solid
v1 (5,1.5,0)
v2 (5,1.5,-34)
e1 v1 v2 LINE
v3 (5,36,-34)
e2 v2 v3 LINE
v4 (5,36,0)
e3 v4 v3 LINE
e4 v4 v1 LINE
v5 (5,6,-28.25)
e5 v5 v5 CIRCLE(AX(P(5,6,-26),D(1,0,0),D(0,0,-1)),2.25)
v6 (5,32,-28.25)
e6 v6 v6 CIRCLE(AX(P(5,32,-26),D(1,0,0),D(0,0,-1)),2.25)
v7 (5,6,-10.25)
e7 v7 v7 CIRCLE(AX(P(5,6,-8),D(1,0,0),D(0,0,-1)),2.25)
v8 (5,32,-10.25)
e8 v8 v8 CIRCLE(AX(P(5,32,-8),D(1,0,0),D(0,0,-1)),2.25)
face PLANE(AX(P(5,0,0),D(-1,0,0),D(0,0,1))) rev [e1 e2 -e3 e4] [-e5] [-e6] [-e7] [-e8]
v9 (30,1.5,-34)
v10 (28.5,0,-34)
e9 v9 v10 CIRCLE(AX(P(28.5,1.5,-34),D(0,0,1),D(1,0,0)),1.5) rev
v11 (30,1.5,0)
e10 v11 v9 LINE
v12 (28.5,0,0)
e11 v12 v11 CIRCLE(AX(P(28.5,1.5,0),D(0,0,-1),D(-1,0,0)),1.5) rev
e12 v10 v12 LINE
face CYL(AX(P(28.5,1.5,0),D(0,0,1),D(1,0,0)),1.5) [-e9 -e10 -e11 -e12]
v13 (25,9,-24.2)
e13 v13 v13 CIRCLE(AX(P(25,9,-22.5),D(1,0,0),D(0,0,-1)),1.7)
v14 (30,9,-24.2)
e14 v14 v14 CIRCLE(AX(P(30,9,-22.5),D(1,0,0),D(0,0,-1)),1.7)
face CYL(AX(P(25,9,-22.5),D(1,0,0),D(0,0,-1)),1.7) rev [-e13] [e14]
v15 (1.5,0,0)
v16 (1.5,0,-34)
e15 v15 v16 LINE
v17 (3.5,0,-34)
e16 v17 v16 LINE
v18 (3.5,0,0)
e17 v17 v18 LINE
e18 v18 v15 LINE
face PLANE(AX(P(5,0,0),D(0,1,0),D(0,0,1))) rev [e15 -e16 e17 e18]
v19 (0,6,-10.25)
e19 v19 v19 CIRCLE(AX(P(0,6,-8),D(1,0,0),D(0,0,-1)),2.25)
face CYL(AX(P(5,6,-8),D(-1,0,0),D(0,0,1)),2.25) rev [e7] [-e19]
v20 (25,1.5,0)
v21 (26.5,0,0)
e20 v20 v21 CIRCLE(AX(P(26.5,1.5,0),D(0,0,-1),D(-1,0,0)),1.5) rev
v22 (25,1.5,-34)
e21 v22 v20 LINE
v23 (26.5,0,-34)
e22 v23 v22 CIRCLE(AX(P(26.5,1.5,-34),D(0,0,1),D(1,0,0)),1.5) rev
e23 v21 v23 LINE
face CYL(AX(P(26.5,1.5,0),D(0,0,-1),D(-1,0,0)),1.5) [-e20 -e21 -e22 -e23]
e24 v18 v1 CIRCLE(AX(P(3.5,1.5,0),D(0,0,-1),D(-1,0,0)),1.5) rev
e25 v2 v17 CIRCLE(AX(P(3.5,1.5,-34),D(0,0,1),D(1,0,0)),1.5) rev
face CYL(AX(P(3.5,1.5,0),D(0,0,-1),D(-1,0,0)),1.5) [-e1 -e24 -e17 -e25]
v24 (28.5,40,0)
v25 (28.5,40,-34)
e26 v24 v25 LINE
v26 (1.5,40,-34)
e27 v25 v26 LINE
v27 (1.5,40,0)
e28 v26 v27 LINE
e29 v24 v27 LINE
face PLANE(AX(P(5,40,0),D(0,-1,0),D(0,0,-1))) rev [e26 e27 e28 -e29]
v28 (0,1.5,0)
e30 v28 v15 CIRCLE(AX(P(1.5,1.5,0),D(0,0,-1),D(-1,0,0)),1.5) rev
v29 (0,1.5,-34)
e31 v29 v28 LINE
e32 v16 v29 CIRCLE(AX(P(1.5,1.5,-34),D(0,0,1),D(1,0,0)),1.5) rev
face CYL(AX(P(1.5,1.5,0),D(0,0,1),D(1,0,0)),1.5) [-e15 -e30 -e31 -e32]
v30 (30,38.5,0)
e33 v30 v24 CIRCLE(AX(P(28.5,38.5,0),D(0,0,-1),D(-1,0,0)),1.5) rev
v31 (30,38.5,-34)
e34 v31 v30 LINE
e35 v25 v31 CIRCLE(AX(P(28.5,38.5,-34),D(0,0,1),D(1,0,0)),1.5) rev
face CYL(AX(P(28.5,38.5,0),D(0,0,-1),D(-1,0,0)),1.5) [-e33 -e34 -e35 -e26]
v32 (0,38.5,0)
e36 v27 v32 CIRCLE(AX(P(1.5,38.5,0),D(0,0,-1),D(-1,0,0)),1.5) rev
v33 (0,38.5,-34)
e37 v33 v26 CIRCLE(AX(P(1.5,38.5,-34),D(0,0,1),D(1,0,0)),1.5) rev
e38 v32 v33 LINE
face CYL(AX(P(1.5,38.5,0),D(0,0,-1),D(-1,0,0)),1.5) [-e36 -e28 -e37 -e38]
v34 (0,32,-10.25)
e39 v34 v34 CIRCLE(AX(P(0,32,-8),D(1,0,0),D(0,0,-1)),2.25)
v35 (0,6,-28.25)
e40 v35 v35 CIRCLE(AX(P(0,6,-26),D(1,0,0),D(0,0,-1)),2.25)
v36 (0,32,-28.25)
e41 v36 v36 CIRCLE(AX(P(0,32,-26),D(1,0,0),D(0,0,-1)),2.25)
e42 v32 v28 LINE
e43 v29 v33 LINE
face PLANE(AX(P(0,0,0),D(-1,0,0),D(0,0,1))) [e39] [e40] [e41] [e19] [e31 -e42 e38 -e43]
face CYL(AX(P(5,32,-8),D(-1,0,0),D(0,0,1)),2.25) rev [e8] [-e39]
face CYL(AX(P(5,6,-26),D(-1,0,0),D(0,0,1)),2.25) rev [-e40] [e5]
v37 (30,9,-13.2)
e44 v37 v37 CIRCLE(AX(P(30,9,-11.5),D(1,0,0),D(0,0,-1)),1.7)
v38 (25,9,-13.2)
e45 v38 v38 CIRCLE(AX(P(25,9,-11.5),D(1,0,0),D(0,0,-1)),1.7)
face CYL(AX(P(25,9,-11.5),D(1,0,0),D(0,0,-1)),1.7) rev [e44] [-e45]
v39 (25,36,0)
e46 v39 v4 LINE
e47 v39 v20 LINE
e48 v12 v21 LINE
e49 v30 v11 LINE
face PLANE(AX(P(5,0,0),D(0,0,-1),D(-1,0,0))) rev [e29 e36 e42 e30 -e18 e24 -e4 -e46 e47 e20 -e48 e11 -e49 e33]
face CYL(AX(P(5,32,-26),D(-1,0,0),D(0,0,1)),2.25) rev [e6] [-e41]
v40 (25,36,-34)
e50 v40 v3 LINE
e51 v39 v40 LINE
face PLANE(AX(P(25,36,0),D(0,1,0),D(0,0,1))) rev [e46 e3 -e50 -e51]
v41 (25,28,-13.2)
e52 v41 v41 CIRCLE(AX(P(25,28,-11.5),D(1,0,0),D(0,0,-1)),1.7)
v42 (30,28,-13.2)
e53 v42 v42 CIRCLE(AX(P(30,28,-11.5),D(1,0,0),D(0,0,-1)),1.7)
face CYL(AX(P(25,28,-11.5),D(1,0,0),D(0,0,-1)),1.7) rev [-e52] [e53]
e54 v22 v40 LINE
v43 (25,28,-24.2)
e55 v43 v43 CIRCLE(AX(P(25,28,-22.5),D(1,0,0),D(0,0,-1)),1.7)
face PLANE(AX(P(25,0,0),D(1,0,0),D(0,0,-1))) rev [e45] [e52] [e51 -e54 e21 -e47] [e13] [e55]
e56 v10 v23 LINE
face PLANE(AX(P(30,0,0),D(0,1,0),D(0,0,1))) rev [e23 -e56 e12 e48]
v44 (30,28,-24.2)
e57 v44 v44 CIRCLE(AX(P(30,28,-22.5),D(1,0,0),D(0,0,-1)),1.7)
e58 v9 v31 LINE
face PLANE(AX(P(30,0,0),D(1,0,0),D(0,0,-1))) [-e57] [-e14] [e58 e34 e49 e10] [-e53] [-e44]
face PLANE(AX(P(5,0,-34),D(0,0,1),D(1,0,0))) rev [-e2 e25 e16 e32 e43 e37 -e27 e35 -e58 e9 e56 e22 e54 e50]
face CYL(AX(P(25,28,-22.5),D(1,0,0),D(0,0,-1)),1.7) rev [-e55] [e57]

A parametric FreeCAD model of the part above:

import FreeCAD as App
import Part
import Sketcher
Q = App.Units.Quantity


def edges_at(feature, points):
    """Names of the edges that pass closest to the given points."""
    edges = feature.Shape.Edges
    near = lambda p: min(range(len(edges)), key=lambda i: edges[i].distToShape(Part.Vertex(*p))[0])
    return sorted({f"Edge{near(p) + 1}" for p in points})

doc = App.newDocument("Part")
body = doc.addObject("PartDesign::Body", "Body")

sketch1 = body.newObject("Sketcher::SketchObject", "Sketch")
sketch1.AttachmentSupport = (doc.getObject("YZ_Plane"), [""])
sketch1.MapMode = "FlatFace"
sketch1.addGeometry([
    Part.LineSegment(App.Vector(40, 0, 0), App.Vector(0, 0, 0)),
    Part.LineSegment(App.Vector(0, 0, 0), App.Vector(0, -34, 0)),
    Part.LineSegment(App.Vector(0, -34, 0), App.Vector(40, -34, 0)),
    Part.LineSegment(App.Vector(40, -34, 0), App.Vector(40, 0, 0)),
    Part.Circle(App.Vector(6, -8, 0), App.Vector(0, 0, 1), 2.2),
    Part.Circle(App.Vector(6, -26, 0), App.Vector(0, 0, 1), 2.2),
    Part.Circle(App.Vector(32, -8, 0), App.Vector(0, 0, 1), 2.2),
    Part.Circle(App.Vector(32, -26, 0), App.Vector(0, 0, 1), 2.2),
], False)
sketch1.addConstraint([
    Sketcher.Constraint("Coincident", 0, 2, 1, 1),
    Sketcher.Constraint("Coincident", 1, 2, 2, 1),
    Sketcher.Constraint("Coincident", 2, 2, 3, 1),
    Sketcher.Constraint("Coincident", 3, 2, 0, 1),
    Sketcher.Constraint("Horizontal", 0),
    Sketcher.Constraint("Vertical", 1),
    Sketcher.Constraint("Horizontal", 2),
    Sketcher.Constraint("Vertical", 3),
    Sketcher.Constraint("Coincident", 0, 2, -1, 1),
    Sketcher.Constraint("Equal", 4, 5),
    Sketcher.Constraint("Equal", 5, 6),
    Sketcher.Constraint("Equal", 6, 7),
    Sketcher.Constraint("Horizontal", 4, 3, 6, 3),
    Sketcher.Constraint("Horizontal", 5, 3, 7, 3),
    Sketcher.Constraint("Vertical", 4, 3, 5, 3),
    Sketcher.Constraint("Vertical", 6, 3, 7, 3),
    Sketcher.Constraint("Diameter", 4, Q("4.5 mm")),
    Sketcher.Constraint("DistanceX", 0, 2, 0, 1, Q("40 mm")),
    Sketcher.Constraint("DistanceY", 1, 2, 1, 1, Q("34 mm")),
    Sketcher.Constraint("DistanceX", -1, 1, 4, 3, Q("6 mm")),
    Sketcher.Constraint("DistanceY", 4, 3, -1, 1, Q("8 mm")),
    Sketcher.Constraint("DistanceY", 5, 3, -1, 1, Q("26 mm")),
    Sketcher.Constraint("DistanceX", -1, 1, 6, 3, Q("32 mm")),
])
pad1 = body.newObject("PartDesign::Pad", "Pad")
pad1.Profile = sketch1
pad1.Length = 5

sketch2 = body.newObject("Sketcher::SketchObject", "Sketch001")
sketch2.AttachmentSupport = (doc.getObject("YZ_Plane"), [""])
sketch2.MapMode = "FlatFace"
sketch2.AttachmentOffset = App.Placement(App.Vector(0, 0, 5), App.Rotation())
sketch2.addGeometry([
    Part.LineSegment(App.Vector(40, 0, 0), App.Vector(36, 0, 0)),
    Part.LineSegment(App.Vector(36, 0, 0), App.Vector(36, -34, 0)),
    Part.LineSegment(App.Vector(36, -34, 0), App.Vector(40, -34, 0)),
    Part.LineSegment(App.Vector(40, -34, 0), App.Vector(40, 0, 0)),
], False)
sketch2.addConstraint([
    Sketcher.Constraint("Coincident", 0, 2, 1, 1),
    Sketcher.Constraint("Coincident", 1, 2, 2, 1),
    Sketcher.Constraint("Coincident", 2, 2, 3, 1),
    Sketcher.Constraint("Coincident", 3, 2, 0, 1),
    Sketcher.Constraint("Horizontal", 0),
    Sketcher.Constraint("Vertical", 1),
    Sketcher.Constraint("Horizontal", 2),
    Sketcher.Constraint("Vertical", 3),
    Sketcher.Constraint("PointOnObject", 0, 2, -1),
    Sketcher.Constraint("DistanceX", 0, 2, 0, 1, Q("4 mm")),
    Sketcher.Constraint("DistanceY", 1, 2, 1, 1, Q("34 mm")),
    Sketcher.Constraint("DistanceX", -1, 1, 0, 2, Q("36 mm")),
])
pad2 = body.newObject("PartDesign::Pad", "Pad001")
pad2.Profile = sketch2
pad2.Length = 20

sketch3 = body.newObject("Sketcher::SketchObject", "Sketch002")
sketch3.AttachmentSupport = (doc.getObject("YZ_Plane"), [""])
sketch3.MapMode = "FlatFace"
sketch3.AttachmentOffset = App.Placement(App.Vector(0, 0, 25), App.Rotation())
sketch3.addGeometry([
    Part.LineSegment(App.Vector(40, 0, 0), App.Vector(0, 0, 0)),
    Part.LineSegment(App.Vector(0, 0, 0), App.Vector(0, -34, 0)),
    Part.LineSegment(App.Vector(0, -34, 0), App.Vector(40, -34, 0)),
    Part.LineSegment(App.Vector(40, -34, 0), App.Vector(40, 0, 0)),
], False)
sketch3.addConstraint([
    Sketcher.Constraint("Coincident", 0, 2, 1, 1),
    Sketcher.Constraint("Coincident", 1, 2, 2, 1),
    Sketcher.Constraint("Coincident", 2, 2, 3, 1),
    Sketcher.Constraint("Coincident", 3, 2, 0, 1),
    Sketcher.Constraint("Horizontal", 0),
    Sketcher.Constraint("Vertical", 1),
    Sketcher.Constraint("Horizontal", 2),
    Sketcher.Constraint("Vertical", 3),
    Sketcher.Constraint("Coincident", 0, 2, -1, 1),
    Sketcher.Constraint("DistanceX", 0, 2, 0, 1, Q("40 mm")),
    Sketcher.Constraint("DistanceY", 1, 2, 1, 1, Q("34 mm")),
])
pad3 = body.newObject("PartDesign::Pad", "Pad002")
pad3.Profile = sketch3
pad3.Length = 5

sketch4 = body.newObject("Sketcher::SketchObject", "Sketch003")
sketch4.AttachmentSupport = (doc.getObject("YZ_Plane"), [""])
sketch4.MapMode = "FlatFace"
sketch4.AttachmentOffset = App.Placement(App.Vector(0, 0, 30), App.Rotation())
sketch4.addGeometry([
    Part.Circle(App.Vector(28, -11.5, 0), App.Vector(0, 0, 1), 1.7),
    Part.Circle(App.Vector(28, -22.5, 0), App.Vector(0, 0, 1), 1.7),
    Part.Circle(App.Vector(9, -11.5, 0), App.Vector(0, 0, 1), 1.7),
    Part.Circle(App.Vector(9, -22.5, 0), App.Vector(0, 0, 1), 1.7),
], False)
sketch4.addConstraint([
    Sketcher.Constraint("Equal", 0, 1),
    Sketcher.Constraint("Equal", 1, 2),
    Sketcher.Constraint("Equal", 2, 3),
    Sketcher.Constraint("Horizontal", 0, 3, 2, 3),
    Sketcher.Constraint("Horizontal", 1, 3, 3, 3),
    Sketcher.Constraint("Vertical", 0, 3, 1, 3),
    Sketcher.Constraint("Vertical", 2, 3, 3, 3),
    Sketcher.Constraint("Diameter", 0, Q("3.4 mm")),
    Sketcher.Constraint("DistanceX", -1, 1, 0, 3, Q("28 mm")),
    Sketcher.Constraint("DistanceX", -1, 1, 2, 3, Q("9 mm")),
    Sketcher.Constraint("DistanceY", 1, 3, 0, 3, Q("11 mm")),
    Sketcher.Constraint("DistanceY", 0, 3, -1, 1, Q("11.5 mm")),
])
pocket1 = body.newObject("PartDesign::Pocket", "Pocket")
pocket1.Profile = sketch4
pocket1.Length = 5
doc.recompute()

fillet = body.newObject("PartDesign::Fillet", "Fillet")
fillet.Base = (pocket1, edges_at(pocket1, [
    (25, 0, -17),
    (30, 0, -17),
    (30, 40, -17),
    (0, 40, -17),
    (0, 0, -17),
    (5, 0, -17),
]))
fillet.Radius = 1.5

doc.recompute()
